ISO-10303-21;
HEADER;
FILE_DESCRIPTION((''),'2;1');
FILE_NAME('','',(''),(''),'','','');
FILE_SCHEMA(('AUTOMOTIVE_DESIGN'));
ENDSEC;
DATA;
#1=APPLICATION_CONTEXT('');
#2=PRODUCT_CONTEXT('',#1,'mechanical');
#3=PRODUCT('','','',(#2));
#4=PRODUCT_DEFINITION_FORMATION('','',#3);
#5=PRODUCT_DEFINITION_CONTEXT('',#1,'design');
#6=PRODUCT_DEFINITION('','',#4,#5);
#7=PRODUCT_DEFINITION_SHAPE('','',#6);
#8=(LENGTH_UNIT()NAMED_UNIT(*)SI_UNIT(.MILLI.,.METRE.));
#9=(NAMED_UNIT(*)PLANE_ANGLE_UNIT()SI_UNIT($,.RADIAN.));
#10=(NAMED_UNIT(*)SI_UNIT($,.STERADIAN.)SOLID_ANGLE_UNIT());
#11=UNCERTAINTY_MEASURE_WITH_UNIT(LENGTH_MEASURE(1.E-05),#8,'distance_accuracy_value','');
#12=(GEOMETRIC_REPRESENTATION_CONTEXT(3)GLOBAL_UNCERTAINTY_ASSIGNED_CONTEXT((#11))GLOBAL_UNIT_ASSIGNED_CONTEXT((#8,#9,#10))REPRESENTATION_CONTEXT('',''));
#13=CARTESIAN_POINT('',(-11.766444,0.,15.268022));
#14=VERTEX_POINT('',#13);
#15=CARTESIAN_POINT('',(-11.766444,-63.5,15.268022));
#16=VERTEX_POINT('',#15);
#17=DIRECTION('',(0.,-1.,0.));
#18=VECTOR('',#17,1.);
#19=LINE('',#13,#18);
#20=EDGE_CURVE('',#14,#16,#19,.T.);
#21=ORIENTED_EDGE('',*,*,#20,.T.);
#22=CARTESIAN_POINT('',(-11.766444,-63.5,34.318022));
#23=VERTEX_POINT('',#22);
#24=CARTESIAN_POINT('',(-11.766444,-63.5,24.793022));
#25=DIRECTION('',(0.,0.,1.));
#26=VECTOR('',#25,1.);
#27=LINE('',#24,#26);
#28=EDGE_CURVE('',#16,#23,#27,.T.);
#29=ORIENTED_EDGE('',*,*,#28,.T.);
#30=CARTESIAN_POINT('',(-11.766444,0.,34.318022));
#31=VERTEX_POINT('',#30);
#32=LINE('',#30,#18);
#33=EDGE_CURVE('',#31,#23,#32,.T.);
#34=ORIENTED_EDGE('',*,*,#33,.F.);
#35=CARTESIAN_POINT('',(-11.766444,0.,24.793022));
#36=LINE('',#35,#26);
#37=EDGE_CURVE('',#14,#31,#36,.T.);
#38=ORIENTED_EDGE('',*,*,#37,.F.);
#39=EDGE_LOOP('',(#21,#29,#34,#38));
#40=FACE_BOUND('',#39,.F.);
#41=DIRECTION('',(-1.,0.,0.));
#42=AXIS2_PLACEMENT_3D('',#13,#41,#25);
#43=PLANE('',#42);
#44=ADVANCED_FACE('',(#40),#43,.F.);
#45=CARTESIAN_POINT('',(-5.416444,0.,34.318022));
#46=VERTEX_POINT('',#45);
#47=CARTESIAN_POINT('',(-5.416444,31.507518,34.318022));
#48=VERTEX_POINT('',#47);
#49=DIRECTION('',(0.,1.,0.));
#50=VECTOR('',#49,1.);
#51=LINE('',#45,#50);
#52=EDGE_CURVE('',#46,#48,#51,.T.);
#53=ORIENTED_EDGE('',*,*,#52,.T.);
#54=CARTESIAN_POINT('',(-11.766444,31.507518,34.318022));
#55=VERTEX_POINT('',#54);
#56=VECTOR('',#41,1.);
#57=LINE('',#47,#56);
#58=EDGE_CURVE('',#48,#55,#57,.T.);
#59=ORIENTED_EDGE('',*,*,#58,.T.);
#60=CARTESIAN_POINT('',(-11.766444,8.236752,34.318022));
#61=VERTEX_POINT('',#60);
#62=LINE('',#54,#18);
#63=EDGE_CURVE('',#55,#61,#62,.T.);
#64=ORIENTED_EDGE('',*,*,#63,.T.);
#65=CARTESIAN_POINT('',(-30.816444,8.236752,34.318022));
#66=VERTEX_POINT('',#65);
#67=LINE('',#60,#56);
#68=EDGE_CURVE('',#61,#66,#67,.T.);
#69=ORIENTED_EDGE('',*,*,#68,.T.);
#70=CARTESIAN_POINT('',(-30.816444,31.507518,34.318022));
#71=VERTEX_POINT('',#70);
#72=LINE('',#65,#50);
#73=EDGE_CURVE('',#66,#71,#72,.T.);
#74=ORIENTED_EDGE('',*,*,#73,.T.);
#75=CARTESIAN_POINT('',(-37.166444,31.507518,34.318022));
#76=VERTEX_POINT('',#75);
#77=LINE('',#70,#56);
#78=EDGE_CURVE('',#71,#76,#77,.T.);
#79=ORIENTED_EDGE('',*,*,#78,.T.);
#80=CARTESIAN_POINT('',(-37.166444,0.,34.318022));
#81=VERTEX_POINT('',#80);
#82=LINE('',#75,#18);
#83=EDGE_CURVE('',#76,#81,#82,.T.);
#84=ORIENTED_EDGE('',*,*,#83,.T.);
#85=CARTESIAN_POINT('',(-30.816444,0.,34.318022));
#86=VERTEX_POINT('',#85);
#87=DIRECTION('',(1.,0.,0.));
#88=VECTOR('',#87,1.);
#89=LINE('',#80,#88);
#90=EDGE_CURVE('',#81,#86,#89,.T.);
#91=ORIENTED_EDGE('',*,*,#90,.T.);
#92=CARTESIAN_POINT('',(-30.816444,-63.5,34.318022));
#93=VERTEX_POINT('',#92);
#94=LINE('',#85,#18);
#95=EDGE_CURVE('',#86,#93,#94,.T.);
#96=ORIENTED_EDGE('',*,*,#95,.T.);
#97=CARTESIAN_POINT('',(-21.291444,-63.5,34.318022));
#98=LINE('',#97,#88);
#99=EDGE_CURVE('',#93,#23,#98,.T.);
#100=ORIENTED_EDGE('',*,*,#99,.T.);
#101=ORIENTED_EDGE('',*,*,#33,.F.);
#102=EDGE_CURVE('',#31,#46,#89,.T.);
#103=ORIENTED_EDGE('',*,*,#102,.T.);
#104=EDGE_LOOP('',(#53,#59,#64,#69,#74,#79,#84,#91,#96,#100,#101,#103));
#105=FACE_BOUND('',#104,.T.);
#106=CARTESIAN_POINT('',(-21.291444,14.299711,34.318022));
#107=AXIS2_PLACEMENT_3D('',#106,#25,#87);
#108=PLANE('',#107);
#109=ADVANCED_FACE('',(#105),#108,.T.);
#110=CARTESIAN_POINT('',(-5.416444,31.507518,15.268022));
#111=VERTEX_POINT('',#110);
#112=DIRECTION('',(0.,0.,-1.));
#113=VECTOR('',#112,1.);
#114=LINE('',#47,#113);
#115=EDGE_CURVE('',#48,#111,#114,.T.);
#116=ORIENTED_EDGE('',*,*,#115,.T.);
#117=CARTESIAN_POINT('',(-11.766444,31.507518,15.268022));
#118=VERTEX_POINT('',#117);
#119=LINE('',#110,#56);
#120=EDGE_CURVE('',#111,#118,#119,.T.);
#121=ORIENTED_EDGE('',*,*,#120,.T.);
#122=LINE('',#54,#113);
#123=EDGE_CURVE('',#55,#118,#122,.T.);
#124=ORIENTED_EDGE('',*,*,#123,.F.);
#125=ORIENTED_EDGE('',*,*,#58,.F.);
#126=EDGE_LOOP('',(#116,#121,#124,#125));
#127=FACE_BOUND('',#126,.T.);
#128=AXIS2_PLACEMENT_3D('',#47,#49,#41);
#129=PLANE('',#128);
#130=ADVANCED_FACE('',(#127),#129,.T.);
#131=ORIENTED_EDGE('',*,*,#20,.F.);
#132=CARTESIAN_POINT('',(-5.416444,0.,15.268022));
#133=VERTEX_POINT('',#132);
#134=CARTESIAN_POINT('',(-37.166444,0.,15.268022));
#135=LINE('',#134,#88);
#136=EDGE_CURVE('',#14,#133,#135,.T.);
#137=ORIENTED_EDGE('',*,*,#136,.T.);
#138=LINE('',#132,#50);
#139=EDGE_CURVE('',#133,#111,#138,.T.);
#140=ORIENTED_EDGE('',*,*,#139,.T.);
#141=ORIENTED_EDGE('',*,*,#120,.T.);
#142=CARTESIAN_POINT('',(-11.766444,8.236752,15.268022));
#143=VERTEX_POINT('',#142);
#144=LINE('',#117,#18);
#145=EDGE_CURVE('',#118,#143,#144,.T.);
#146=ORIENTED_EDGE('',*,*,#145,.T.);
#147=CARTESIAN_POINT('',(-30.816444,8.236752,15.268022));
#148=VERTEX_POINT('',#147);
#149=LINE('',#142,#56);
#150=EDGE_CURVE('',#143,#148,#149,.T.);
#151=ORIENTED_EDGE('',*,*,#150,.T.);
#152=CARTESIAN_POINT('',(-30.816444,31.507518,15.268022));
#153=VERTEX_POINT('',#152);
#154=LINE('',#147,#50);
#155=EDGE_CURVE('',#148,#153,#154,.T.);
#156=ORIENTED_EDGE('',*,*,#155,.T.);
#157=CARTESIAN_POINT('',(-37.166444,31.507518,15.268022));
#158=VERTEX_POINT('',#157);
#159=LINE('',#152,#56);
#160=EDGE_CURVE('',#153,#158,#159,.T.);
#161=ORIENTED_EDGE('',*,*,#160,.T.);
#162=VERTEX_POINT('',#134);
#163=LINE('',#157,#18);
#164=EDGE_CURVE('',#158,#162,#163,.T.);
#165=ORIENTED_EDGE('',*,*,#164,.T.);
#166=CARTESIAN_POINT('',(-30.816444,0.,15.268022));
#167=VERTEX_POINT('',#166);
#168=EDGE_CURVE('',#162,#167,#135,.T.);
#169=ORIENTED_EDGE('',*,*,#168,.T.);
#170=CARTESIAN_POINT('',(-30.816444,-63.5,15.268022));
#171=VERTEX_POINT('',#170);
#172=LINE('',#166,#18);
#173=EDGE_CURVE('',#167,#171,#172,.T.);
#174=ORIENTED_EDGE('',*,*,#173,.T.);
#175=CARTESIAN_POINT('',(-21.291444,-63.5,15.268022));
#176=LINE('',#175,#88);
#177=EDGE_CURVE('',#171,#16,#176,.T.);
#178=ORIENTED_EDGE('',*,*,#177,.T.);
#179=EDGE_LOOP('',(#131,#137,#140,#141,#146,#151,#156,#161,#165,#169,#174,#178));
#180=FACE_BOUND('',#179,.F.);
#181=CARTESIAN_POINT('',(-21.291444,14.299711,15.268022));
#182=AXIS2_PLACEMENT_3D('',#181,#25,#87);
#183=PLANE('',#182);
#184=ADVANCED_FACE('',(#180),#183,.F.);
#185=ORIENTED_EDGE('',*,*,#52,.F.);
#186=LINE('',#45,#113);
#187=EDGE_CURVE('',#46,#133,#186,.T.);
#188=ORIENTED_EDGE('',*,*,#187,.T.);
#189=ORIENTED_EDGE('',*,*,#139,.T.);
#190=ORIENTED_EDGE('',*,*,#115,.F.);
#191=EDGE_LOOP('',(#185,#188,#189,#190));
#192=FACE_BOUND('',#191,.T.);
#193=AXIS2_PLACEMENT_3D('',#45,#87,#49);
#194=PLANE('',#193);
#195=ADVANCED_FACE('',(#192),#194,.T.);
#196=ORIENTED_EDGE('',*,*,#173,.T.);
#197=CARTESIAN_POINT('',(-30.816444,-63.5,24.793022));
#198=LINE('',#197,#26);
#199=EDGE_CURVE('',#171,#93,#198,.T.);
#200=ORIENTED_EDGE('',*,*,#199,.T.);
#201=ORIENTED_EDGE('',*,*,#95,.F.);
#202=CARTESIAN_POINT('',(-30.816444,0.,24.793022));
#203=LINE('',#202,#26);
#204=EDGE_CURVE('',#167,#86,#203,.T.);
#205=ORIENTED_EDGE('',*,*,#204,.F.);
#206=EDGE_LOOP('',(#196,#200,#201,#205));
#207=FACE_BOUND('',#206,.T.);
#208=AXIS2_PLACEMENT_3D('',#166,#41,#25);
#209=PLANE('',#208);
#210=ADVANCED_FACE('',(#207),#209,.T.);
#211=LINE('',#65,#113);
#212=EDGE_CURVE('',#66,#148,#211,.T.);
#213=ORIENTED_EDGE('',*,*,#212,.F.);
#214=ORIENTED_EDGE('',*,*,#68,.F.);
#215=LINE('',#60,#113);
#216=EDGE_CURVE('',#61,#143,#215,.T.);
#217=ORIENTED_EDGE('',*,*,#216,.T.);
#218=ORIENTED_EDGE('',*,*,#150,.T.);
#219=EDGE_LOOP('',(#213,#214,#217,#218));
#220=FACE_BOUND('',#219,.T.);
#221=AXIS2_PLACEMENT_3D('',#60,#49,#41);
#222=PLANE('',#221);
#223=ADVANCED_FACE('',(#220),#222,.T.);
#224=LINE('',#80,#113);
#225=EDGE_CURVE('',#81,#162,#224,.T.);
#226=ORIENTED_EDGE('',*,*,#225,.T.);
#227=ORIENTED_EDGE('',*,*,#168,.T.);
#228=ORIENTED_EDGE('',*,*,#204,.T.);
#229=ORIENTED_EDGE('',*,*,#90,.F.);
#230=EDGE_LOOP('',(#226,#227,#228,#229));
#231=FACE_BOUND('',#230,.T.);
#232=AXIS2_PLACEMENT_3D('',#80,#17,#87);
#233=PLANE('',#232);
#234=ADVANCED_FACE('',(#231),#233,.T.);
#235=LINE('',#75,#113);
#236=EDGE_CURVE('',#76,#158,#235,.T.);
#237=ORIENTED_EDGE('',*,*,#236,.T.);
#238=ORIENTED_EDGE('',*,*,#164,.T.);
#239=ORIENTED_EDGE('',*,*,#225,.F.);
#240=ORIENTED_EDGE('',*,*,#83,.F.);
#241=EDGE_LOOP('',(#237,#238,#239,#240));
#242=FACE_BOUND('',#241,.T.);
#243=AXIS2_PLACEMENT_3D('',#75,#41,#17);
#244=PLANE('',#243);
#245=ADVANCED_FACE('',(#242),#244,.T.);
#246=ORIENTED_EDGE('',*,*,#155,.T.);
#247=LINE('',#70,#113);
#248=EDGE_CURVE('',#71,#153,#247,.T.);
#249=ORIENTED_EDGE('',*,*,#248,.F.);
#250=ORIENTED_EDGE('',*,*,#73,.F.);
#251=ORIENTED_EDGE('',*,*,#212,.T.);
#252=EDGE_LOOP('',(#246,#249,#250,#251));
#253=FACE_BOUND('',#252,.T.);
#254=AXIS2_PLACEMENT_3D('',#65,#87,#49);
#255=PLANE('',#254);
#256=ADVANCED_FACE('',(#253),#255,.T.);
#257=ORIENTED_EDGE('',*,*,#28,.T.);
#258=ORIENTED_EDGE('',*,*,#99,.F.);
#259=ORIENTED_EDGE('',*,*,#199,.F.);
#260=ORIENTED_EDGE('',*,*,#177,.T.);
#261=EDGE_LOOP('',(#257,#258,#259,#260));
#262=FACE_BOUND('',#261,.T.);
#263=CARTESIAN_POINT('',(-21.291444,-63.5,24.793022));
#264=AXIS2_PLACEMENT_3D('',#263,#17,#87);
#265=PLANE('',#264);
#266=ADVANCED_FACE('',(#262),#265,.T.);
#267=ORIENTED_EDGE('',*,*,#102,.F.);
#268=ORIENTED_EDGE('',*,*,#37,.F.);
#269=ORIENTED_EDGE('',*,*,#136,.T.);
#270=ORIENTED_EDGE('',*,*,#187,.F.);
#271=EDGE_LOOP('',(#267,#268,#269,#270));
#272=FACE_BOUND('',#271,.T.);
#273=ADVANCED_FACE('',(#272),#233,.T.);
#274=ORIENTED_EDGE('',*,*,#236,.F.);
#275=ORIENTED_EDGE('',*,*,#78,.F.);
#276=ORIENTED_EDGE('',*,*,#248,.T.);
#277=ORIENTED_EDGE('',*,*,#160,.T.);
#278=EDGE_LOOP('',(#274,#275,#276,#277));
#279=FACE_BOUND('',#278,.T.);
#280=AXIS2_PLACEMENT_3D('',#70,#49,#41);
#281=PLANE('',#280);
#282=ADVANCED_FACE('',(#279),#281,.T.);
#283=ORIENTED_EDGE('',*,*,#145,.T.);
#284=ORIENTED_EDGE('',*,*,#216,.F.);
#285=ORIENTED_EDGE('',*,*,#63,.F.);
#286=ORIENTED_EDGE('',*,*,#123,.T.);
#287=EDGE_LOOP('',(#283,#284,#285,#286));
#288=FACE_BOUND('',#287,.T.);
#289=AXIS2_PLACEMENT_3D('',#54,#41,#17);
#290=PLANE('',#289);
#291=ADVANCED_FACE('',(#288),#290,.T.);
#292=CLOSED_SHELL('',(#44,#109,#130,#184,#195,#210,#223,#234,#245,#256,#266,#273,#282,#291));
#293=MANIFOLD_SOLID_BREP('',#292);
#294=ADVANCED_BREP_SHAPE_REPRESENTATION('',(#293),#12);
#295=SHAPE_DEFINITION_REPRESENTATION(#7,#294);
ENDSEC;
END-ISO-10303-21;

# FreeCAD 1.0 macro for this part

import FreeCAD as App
import Part
import Sketcher

V = App.Vector
Q = App.Units.Quantity

doc = App.newDocument("Part")
params = doc.addObject("Spreadsheet::Sheet", "Params")
for row, (alias, value) in enumerate([
    ("sketch1_width", "0.75 in"),
    ("pad1_length", "2.5 in"),
    ("sketch2_width", "0.25 in"),
    ("pad2_length", "0.75 in"),
], start=1):
    params.set(f"A{row}", alias)
    params.set(f"B{row}", "=" + value)
    params.setAlias(f"B{row}", alias)

body = doc.addObject("PartDesign::Body", "Body")

# Sketch on XZ plane
sketch1 = body.newObject("Sketcher::SketchObject", "Sketch")
sketch1.AttachmentSupport = (doc.getObject("XZ_Plane"), [""])
sketch1.MapMode = "FlatFace"
sketch1.addGeometry(Part.LineSegment(V(-30.816444, 34.318022, 0), V(-30.816444, 15.268022, 0)), False)
sketch1.addGeometry(Part.LineSegment(V(-30.816444, 15.268022, 0), V(-11.766444, 15.268022, 0)), False)
sketch1.addGeometry(Part.LineSegment(V(-11.766444, 15.268022, 0), V(-11.766444, 34.318022, 0)), False)
sketch1.addGeometry(Part.LineSegment(V(-11.766444, 34.318022, 0), V(-30.816444, 34.318022, 0)), False)
sketch1.addConstraint(Sketcher.Constraint("Coincident", 0, 2, 1, 1))
sketch1.addConstraint(Sketcher.Constraint("Coincident", 1, 2, 2, 1))
sketch1.addConstraint(Sketcher.Constraint("Coincident", 2, 2, 3, 1))
sketch1.addConstraint(Sketcher.Constraint("Coincident", 3, 2, 0, 1))
sketch1.addConstraint(Sketcher.Constraint("Vertical", 0))
sketch1.addConstraint(Sketcher.Constraint("Horizontal", 1))
sketch1.addConstraint(Sketcher.Constraint("Vertical", 2))
sketch1.addConstraint(Sketcher.Constraint("Horizontal", 3))
sketch1.addConstraint(Sketcher.Constraint("Equal", 3, 0))
sketch1.addConstraint(Sketcher.Constraint("DistanceX", 1, 1, 1, 2, Q("0.75 in")))
sketch1.addConstraint(Sketcher.Constraint("DistanceX", 0, 2, -1, 1, Q("30.816444 mm")))
sketch1.addConstraint(Sketcher.Constraint("DistanceY", -1, 1, 0, 2, Q("15.268022 mm")))
sketch1.setExpression("Constraints[9]", "Params.sketch1_width")
pad1 = body.newObject("PartDesign::Pad", "Pad")
pad1.Profile = sketch1
pad1.setExpression("Length", "Params.pad1_length")

# Sketch on XY plane
sketch2 = body.newObject("Sketcher::SketchObject", "Sketch001")
sketch2.AttachmentSupport = (doc.getObject("XY_Plane"), [""])
sketch2.MapMode = "FlatFace"
sketch2.AttachmentOffset = App.Placement(V(0, 0, 34.318022), App.Rotation())
sketch2.addGeometry(Part.LineSegment(V(-5.416444, 0, 0), V(-5.416444, 31.507518, 0)), False)
sketch2.addGeometry(Part.LineSegment(V(-5.416444, 31.507518, 0), V(-11.766444, 31.507518, 0)), False)
sketch2.addGeometry(Part.LineSegment(V(-11.766444, 31.507518, 0), V(-11.766444, 8.236752, 0)), False)
sketch2.addGeometry(Part.LineSegment(V(-11.766444, 8.236752, 0), V(-30.816444, 8.236752, 0)), False)
sketch2.addGeometry(Part.LineSegment(V(-30.816444, 8.236752, 0), V(-30.816444, 31.507518, 0)), False)
sketch2.addGeometry(Part.LineSegment(V(-30.816444, 31.507518, 0), V(-37.166444, 31.507518, 0)), False)
sketch2.addGeometry(Part.LineSegment(V(-37.166444, 31.507518, 0), V(-37.166444, 0, 0)), False)
sketch2.addGeometry(Part.LineSegment(V(-37.166444, 0, 0), V(-5.416444, 0, 0)), False)
sketch2.addConstraint(Sketcher.Constraint("Coincident", 0, 2, 1, 1))
sketch2.addConstraint(Sketcher.Constraint("Coincident", 1, 2, 2, 1))
sketch2.addConstraint(Sketcher.Constraint("Coincident", 2, 2, 3, 1))
sketch2.addConstraint(Sketcher.Constraint("Coincident", 3, 2, 4, 1))
sketch2.addConstraint(Sketcher.Constraint("Coincident", 4, 2, 5, 1))
sketch2.addConstraint(Sketcher.Constraint("Coincident", 5, 2, 6, 1))
sketch2.addConstraint(Sketcher.Constraint("Coincident", 6, 2, 7, 1))
sketch2.addConstraint(Sketcher.Constraint("Coincident", 7, 2, 0, 1))
sketch2.addConstraint(Sketcher.Constraint("Vertical", 0))
sketch2.addConstraint(Sketcher.Constraint("Horizontal", 1))
sketch2.addConstraint(Sketcher.Constraint("Vertical", 2))
sketch2.addConstraint(Sketcher.Constraint("Horizontal", 3))
sketch2.addConstraint(Sketcher.Constraint("Vertical", 4))
sketch2.addConstraint(Sketcher.Constraint("Horizontal", 5))
sketch2.addConstraint(Sketcher.Constraint("Vertical", 6))
sketch2.addConstraint(Sketcher.Constraint("Horizontal", 7))
sketch2.addConstraint(Sketcher.Constraint("PointOnObject", 6, 2, -1))
sketch2.addConstraint(Sketcher.Constraint("Horizontal", 1, 2, 4, 2))
sketch2.addConstraint(Sketcher.Constraint("Equal", 1, 5))
sketch2.addConstraint(Sketcher.Constraint("DistanceX", 3, 2, 0, 2, Q("1 in")))
sketch2.addConstraint(Sketcher.Constraint("DistanceX", 1, 2, 1, 1, Q("0.25 in")))
sketch2.addConstraint(Sketcher.Constraint("DistanceY", 0, 1, 0, 2, Q("31.507518 mm")))
sketch2.addConstraint(Sketcher.Constraint("DistanceY", 2, 2, 2, 1, Q("23.270766 mm")))
sketch2.addConstraint(Sketcher.Constraint("DistanceX", 0, 2, -1, 1, Q("5.416444 mm")))
sketch2.setExpression("Constraints[20]", "Params.sketch2_width")
pad2 = body.newObject("PartDesign::Pad", "Pad001")
pad2.Profile = sketch2
pad2.setExpression("Length", "Params.pad2_length")
pad2.Reversed = True

doc.recompute()
